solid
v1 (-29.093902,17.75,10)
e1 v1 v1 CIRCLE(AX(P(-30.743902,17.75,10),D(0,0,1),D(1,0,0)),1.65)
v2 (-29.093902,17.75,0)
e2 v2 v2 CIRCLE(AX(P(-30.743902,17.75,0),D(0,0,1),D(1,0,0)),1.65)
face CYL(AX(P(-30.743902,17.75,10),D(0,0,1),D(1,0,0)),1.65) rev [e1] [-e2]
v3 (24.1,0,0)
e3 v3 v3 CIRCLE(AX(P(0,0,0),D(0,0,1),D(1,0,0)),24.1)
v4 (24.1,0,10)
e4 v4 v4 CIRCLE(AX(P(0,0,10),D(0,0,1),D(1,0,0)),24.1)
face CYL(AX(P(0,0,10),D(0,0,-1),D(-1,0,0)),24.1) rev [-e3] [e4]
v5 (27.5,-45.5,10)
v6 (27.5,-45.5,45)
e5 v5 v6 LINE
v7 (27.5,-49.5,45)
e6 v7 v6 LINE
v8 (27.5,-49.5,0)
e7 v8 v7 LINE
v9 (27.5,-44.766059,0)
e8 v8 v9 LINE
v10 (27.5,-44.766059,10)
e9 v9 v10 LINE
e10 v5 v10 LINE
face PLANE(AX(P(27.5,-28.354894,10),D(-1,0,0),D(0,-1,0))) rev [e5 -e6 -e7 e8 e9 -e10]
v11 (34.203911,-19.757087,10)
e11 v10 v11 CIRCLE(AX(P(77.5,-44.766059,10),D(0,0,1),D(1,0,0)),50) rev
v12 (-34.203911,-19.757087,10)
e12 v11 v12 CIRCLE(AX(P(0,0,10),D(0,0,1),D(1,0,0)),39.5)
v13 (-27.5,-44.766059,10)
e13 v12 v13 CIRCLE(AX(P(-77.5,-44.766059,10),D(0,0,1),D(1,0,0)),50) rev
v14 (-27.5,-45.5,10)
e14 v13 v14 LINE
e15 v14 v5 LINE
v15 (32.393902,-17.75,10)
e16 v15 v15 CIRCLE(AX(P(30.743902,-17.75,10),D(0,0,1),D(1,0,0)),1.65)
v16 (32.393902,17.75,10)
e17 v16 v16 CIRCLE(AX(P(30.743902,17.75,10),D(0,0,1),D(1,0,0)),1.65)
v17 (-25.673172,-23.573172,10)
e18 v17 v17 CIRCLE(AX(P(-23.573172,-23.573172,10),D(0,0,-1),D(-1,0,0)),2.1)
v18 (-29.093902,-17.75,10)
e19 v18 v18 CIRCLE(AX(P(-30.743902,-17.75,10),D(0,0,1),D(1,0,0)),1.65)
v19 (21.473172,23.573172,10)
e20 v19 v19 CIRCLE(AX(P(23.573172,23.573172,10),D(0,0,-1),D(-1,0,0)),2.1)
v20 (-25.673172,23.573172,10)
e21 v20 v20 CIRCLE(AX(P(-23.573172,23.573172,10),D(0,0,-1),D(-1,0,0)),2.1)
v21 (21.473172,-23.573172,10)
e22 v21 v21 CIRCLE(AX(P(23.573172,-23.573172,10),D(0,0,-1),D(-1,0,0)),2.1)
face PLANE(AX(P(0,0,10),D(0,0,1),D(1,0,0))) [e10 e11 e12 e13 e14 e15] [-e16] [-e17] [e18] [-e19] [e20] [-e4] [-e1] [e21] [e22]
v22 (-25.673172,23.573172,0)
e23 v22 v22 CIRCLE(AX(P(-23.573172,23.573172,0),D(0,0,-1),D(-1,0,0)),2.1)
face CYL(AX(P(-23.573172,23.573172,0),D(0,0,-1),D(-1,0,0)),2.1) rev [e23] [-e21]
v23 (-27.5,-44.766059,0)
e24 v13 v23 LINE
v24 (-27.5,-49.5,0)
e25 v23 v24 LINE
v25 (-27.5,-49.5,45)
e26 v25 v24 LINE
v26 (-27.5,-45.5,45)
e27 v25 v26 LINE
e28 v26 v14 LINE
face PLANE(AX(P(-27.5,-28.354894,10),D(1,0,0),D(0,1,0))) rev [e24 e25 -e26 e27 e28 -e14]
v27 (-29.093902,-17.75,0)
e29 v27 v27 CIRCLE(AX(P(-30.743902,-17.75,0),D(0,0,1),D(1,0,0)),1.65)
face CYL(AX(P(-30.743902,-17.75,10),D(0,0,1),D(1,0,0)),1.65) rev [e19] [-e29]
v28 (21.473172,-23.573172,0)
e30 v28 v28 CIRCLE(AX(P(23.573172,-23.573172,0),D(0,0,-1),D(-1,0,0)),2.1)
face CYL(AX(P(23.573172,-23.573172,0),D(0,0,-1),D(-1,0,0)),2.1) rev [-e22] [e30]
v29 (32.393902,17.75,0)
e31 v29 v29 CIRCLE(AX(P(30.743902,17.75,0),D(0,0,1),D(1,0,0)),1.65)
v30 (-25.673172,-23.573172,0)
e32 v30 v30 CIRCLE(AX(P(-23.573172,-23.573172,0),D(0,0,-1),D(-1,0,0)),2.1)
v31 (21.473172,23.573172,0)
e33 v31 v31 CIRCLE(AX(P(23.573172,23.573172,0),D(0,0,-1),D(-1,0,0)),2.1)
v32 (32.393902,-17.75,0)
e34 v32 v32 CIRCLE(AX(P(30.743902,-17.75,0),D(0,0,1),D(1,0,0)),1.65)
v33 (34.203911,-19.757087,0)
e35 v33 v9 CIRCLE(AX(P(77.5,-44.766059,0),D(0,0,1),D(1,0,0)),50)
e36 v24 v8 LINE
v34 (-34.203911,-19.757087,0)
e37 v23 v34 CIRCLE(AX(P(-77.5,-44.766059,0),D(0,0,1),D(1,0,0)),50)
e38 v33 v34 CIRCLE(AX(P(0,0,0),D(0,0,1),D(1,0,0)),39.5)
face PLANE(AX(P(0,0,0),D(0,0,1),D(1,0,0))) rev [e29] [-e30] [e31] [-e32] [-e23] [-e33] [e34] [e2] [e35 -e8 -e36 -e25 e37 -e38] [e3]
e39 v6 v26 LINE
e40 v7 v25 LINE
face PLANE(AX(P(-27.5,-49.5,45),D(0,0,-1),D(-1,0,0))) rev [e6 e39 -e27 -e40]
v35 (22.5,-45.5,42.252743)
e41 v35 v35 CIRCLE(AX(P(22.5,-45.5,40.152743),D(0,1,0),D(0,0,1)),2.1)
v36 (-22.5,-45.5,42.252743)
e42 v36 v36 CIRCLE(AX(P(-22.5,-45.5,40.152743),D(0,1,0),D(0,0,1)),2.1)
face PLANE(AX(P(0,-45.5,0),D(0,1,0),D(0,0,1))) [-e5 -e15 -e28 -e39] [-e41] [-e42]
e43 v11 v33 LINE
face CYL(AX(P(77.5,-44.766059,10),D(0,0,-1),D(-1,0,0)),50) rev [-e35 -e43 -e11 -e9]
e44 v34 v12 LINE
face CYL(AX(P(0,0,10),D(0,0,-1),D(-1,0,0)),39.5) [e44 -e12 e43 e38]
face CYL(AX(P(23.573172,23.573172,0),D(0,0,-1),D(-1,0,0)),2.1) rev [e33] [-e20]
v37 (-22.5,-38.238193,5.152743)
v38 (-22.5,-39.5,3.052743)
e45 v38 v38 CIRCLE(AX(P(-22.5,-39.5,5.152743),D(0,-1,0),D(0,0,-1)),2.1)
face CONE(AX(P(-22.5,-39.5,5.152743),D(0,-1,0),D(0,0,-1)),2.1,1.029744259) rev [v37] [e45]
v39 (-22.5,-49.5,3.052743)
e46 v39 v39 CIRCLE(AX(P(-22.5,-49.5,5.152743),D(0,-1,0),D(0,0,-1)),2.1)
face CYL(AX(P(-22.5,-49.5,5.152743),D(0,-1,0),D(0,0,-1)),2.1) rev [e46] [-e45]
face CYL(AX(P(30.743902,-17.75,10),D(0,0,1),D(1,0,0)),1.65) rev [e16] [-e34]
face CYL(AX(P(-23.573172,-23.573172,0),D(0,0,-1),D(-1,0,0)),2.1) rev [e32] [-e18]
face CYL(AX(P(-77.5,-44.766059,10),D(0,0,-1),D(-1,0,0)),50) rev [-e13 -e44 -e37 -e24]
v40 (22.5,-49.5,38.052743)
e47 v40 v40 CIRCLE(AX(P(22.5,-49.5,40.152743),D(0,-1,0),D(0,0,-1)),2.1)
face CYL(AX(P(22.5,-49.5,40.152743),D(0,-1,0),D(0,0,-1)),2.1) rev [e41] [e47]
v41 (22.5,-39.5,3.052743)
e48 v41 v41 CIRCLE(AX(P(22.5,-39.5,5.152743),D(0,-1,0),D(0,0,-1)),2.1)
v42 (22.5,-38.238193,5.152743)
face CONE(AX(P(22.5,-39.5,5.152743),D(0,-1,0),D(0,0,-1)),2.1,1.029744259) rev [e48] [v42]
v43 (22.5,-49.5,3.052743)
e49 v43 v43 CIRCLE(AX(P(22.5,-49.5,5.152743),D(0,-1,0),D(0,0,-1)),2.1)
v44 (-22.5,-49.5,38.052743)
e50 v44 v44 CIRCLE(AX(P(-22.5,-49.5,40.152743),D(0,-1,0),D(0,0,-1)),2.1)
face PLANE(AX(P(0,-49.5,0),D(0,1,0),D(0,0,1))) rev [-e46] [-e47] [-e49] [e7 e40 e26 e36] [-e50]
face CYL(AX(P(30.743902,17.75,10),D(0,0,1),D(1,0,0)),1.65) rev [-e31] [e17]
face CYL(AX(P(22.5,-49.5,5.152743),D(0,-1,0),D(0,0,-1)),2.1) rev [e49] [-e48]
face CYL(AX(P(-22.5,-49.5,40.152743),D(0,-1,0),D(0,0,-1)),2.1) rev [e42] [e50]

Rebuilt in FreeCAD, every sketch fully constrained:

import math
import FreeCAD as App
import Part
import Sketcher


def edges_at(feature, points):
    """Names of the edges that pass closest to the given points."""
    edges = feature.Shape.Edges
    near = lambda p: min(range(len(edges)), key=lambda i: edges[i].distToShape(Part.Vertex(*p))[0])
    return sorted({f"Edge{near(p) + 1}" for p in points})


def add_polygon(sketch, points):
    """Adds a closed chain of lines whose ends are joined by coincident constraints."""
    first, n = sketch.GeometryCount, len(points)
    for a, b in zip(points, points[1:] + points[:1]):
        sketch.addGeometry(Part.LineSegment(App.Vector(*a, 0), App.Vector(*b, 0)), False)
    for i in range(n):
        sketch.addConstraint(Sketcher.Constraint("Coincident", first + i, 2, first + (i + 1) % n, 1))

doc = App.newDocument("Part")
params = doc.addObject("Spreadsheet::Sheet", "Params")
for row, (alias, value) in enumerate([
    ("sketch1_diameter", "48.2 mm"),
    ("sketch1_radius", "39.5 mm"),
    ("sketch1_width", "55 mm"),
    ("pad1_length", "10 mm"),
    ("sketch2_diameter", "4.2 mm"),
    ("hole_diameter", "4.2 mm"),
    ("sketch3_diameter", "3.3 mm"),
    ("hole2_diameter", "3.3 mm"),
    ("sketch4_width", "55 mm"),
    ("sketch4_height", "45 mm"),
    ("pad2_length", "4 mm"),
    ("sketch5_diameter", "4.2 mm"),
    ("hole3_diameter", "4.2 mm"),
    ("hole3_depth", "10 mm"),
    ("fillet_radius", "50 mm"),
], start=1):
    params.set(f"A{row}", alias)
    params.set(f"B{row}", "=" + value)
    params.setAlias(f"B{row}", alias)

body = doc.addObject("PartDesign::Body", "Body")

# Sketch on XY plane
sketch1 = doc.addObject("Sketcher::SketchObject", "Sketch")
body.addObject(sketch1)
sketch1.AttachmentSupport = (doc.XY_Plane, [""])
sketch1.MapMode = "FlatFace"
sketch1.addGeometry(Part.LineSegment(App.Vector(-27.5, -28.354894, 0), App.Vector(-27.5, -45.5, 0)), False)
sketch1.addGeometry(Part.LineSegment(App.Vector(-27.5, -45.5, 0), App.Vector(27.5, -45.5, 0)), False)
sketch1.addGeometry(Part.LineSegment(App.Vector(27.5, -45.5, 0), App.Vector(27.5, -28.354894, 0)), False)
sketch1.addGeometry(Part.ArcOfCircle(Part.Circle(App.Vector(0, 0, 0), App.Vector(0, 0, 1), 39.5), math.radians(-45.876879), math.radians(225.876879)), False)
sketch1.addGeometry(Part.Circle(App.Vector(0, 0, 0), App.Vector(0, 0, 1), 24.1), False)
sketch1.addConstraint(Sketcher.Constraint("Coincident", 0, 2, 1, 1))
sketch1.addConstraint(Sketcher.Constraint("Coincident", 1, 2, 2, 1))
sketch1.addConstraint(Sketcher.Constraint("Coincident", 2, 2, 3, 1))
sketch1.addConstraint(Sketcher.Constraint("Coincident", 3, 2, 0, 1))
sketch1.addConstraint(Sketcher.Constraint("Vertical", 0))
sketch1.addConstraint(Sketcher.Constraint("Horizontal", 1))
sketch1.addConstraint(Sketcher.Constraint("Vertical", 2))
sketch1.addConstraint(Sketcher.Constraint("Coincident", 3, 3, -1, 1))
sketch1.addConstraint(Sketcher.Constraint("Coincident", 4, 3, -1, 1))
sketch1.addConstraint(Sketcher.Constraint("Horizontal", 2, 2, 3, 2))
sketch1.addConstraint(Sketcher.Constraint("Diameter", 4, 48.2))
sketch1.addConstraint(Sketcher.Constraint("Radius", 3, 39.5))
sketch1.addConstraint(Sketcher.Constraint("DistanceX", 1, 1, 1, 2, 55.0))
sketch1.addConstraint(Sketcher.Constraint("DistanceY", 0, 2, -1, 1, 45.5))
sketch1.setExpression("Constraints[10]", "Params.sketch1_diameter")
sketch1.setExpression("Constraints[11]", "Params.sketch1_radius")
sketch1.setExpression("Constraints[12]", "Params.sketch1_width")
pad1 = doc.addObject("PartDesign::Pad", "Pad")
body.addObject(pad1)
pad1.Profile = sketch1
pad1.setExpression("Length", "Params.pad1_length")

# Sketch on XY plane
sketch2 = doc.addObject("Sketcher::SketchObject", "Sketch001")
body.addObject(sketch2)
sketch2.AttachmentSupport = (doc.XY_Plane, [""])
sketch2.MapMode = "FlatFace"
sketch2.addGeometry(Part.Circle(App.Vector(23.573172, 23.573172, 0), App.Vector(0, 0, 1), 2.1), False)
sketch2.addGeometry(Part.Circle(App.Vector(-23.573172, 23.573172, 0), App.Vector(0, 0, 1), 2.1), False)
sketch2.addGeometry(Part.Circle(App.Vector(-23.573172, -23.573172, 0), App.Vector(0, 0, 1), 2.1), False)
sketch2.addGeometry(Part.Circle(App.Vector(23.573172, -23.573172, 0), App.Vector(0, 0, 1), 2.1), False)
sketch2.addConstraint(Sketcher.Constraint("Equal", 0, 1))
sketch2.addConstraint(Sketcher.Constraint("Equal", 1, 2))
sketch2.addConstraint(Sketcher.Constraint("Equal", 2, 3))
sketch2.addConstraint(Sketcher.Constraint("Symmetric", 0, 3, 2, 3, -1, 1))
sketch2.addConstraint(Sketcher.Constraint("Symmetric", 1, 3, 3, 3, -1, 1))
sketch2.addConstraint(Sketcher.Constraint("Symmetric", 0, 3, 1, 3, -2))
sketch2.addConstraint(Sketcher.Constraint("Diameter", 0, 4.2))
sketch2.addConstraint(Sketcher.Constraint("DistanceX", -1, 1, 0, 3, 23.573172))
sketch2.addConstraint(Sketcher.Constraint("DistanceY", -1, 1, 0, 3, 23.573172))
sketch2.setExpression("Constraints[6]", "Params.sketch2_diameter")
doc.recompute()
hole = doc.addObject("PartDesign::Hole", "Hole")
body.addObject(hole)
hole.Profile = sketch2
hole.ThreadType = "None"
hole.setExpression("Diameter", "Params.hole_diameter")
hole.DepthType = "ThroughAll"
hole.Reversed = True

# Sketch on XY plane
sketch3 = doc.addObject("Sketcher::SketchObject", "Sketch002")
body.addObject(sketch3)
sketch3.AttachmentSupport = (doc.XY_Plane, [""])
sketch3.MapMode = "FlatFace"
sketch3.AttachmentOffset = App.Placement(App.Vector(0, 0, 10), App.Rotation())
sketch3.addGeometry(Part.Circle(App.Vector(-30.743902, -17.75, 0), App.Vector(0, 0, 1), 1.65), False)
sketch3.addGeometry(Part.Circle(App.Vector(-30.743902, 17.75, 0), App.Vector(0, 0, 1), 1.65), False)
sketch3.addGeometry(Part.Circle(App.Vector(30.743902, 17.75, 0), App.Vector(0, 0, 1), 1.65), False)
sketch3.addGeometry(Part.Circle(App.Vector(30.743902, -17.75, 0), App.Vector(0, 0, 1), 1.65), False)
sketch3.addConstraint(Sketcher.Constraint("Equal", 0, 1))
sketch3.addConstraint(Sketcher.Constraint("Equal", 1, 2))
sketch3.addConstraint(Sketcher.Constraint("Equal", 2, 3))
sketch3.addConstraint(Sketcher.Constraint("Symmetric", 0, 3, 2, 3, -1, 1))
sketch3.addConstraint(Sketcher.Constraint("Symmetric", 1, 3, 3, 3, -1, 1))
sketch3.addConstraint(Sketcher.Constraint("Symmetric", 1, 3, 2, 3, -2))
sketch3.addConstraint(Sketcher.Constraint("Diameter", 0, 3.3))
sketch3.addConstraint(Sketcher.Constraint("DistanceY", 0, 3, 1, 3, 35.5))
sketch3.addConstraint(Sketcher.Constraint("DistanceX", 0, 3, -1, 1, 30.743902))
sketch3.setExpression("Constraints[6]", "Params.sketch3_diameter")
doc.recompute()
hole2 = doc.addObject("PartDesign::Hole", "Hole001")
body.addObject(hole2)
hole2.Profile = sketch3
hole2.ThreadType = "None"
hole2.setExpression("Diameter", "Params.hole2_diameter")
hole2.DepthType = "ThroughAll"

# Sketch on XZ plane
sketch4 = doc.addObject("Sketcher::SketchObject", "Sketch003")
body.addObject(sketch4)
sketch4.AttachmentSupport = (doc.XZ_Plane, [""])
sketch4.MapMode = "FlatFace"
sketch4.AttachmentOffset = App.Placement(App.Vector(0, 0, 45.5), App.Rotation())
add_polygon(sketch4, [(-27.5, 45), (-27.5, 0), (27.5, 0), (27.5, 45)])  # lines 0-3
sketch4.addConstraint(Sketcher.Constraint("Vertical", 0))
sketch4.addConstraint(Sketcher.Constraint("Horizontal", 1))
sketch4.addConstraint(Sketcher.Constraint("Vertical", 2))
sketch4.addConstraint(Sketcher.Constraint("Horizontal", 3))
sketch4.addConstraint(Sketcher.Constraint("Symmetric", 0, 2, 1, 2, -1, 1))
sketch4.addConstraint(Sketcher.Constraint("DistanceX", 1, 1, 1, 2, 55.0))
sketch4.addConstraint(Sketcher.Constraint("DistanceY", 0, 2, 0, 1, 45.0))
sketch4.setExpression("Constraints[9]", "Params.sketch4_width")
sketch4.setExpression("Constraints[10]", "Params.sketch4_height")
pad2 = doc.addObject("PartDesign::Pad", "Pad001")
body.addObject(pad2)
pad2.Profile = sketch4
pad2.setExpression("Length", "Params.pad2_length")

# Sketch on XZ plane
sketch5 = doc.addObject("Sketcher::SketchObject", "Sketch004")
body.addObject(sketch5)
sketch5.AttachmentSupport = (doc.XZ_Plane, [""])
sketch5.MapMode = "FlatFace"
sketch5.AttachmentOffset = App.Placement(App.Vector(0, 0, 49.5), App.Rotation())
sketch5.addGeometry(Part.Circle(App.Vector(-22.5, 40.152743, 0), App.Vector(0, 0, 1), 2.1), False)
sketch5.addGeometry(Part.Circle(App.Vector(22.5, 40.152743, 0), App.Vector(0, 0, 1), 2.1), False)
sketch5.addGeometry(Part.Circle(App.Vector(22.5, 5.152743, 0), App.Vector(0, 0, 1), 2.1), False)
sketch5.addGeometry(Part.Circle(App.Vector(-22.5, 5.152743, 0), App.Vector(0, 0, 1), 2.1), False)
sketch5.addConstraint(Sketcher.Constraint("Equal", 0, 1))
sketch5.addConstraint(Sketcher.Constraint("Equal", 1, 2))
sketch5.addConstraint(Sketcher.Constraint("Equal", 2, 3))
sketch5.addConstraint(Sketcher.Constraint("Symmetric", 0, 3, 1, 3, -2))
sketch5.addConstraint(Sketcher.Constraint("Symmetric", 2, 3, 3, 3, -2))
sketch5.addConstraint(Sketcher.Constraint("Vertical", 1, 3, 2, 3))
sketch5.addConstraint(Sketcher.Constraint("Diameter", 0, 4.2))
sketch5.addConstraint(Sketcher.Constraint("DistanceX", 0, 3, 1, 3, 45.0))
sketch5.addConstraint(Sketcher.Constraint("DistanceY", 2, 3, 1, 3, 35.0))
sketch5.addConstraint(Sketcher.Constraint("DistanceY", -1, 1, 0, 3, 40.152743))
sketch5.setExpression("Constraints[6]", "Params.sketch5_diameter")
doc.recompute()
hole3 = doc.addObject("PartDesign::Hole", "Hole002")
body.addObject(hole3)
hole3.Profile = sketch5
hole3.ThreadType = "None"
hole3.setExpression("Diameter", "Params.hole3_diameter")
hole3.DepthType = "Dimension"
hole3.setExpression("Depth", "Params.hole3_depth")
hole3.DrillPoint = "Angled"
hole3.DrillPointAngle = 118
doc.recompute()

fillet = doc.addObject("PartDesign::Fillet", "Fillet")
body.addObject(fillet)
fillet.Base = (hole3, edges_at(hole3, [(-27.5, -28.355, 5), (27.5, -28.355, 5)]))
fillet.setExpression("Radius", "Params.fillet_radius")

doc.recompute()
